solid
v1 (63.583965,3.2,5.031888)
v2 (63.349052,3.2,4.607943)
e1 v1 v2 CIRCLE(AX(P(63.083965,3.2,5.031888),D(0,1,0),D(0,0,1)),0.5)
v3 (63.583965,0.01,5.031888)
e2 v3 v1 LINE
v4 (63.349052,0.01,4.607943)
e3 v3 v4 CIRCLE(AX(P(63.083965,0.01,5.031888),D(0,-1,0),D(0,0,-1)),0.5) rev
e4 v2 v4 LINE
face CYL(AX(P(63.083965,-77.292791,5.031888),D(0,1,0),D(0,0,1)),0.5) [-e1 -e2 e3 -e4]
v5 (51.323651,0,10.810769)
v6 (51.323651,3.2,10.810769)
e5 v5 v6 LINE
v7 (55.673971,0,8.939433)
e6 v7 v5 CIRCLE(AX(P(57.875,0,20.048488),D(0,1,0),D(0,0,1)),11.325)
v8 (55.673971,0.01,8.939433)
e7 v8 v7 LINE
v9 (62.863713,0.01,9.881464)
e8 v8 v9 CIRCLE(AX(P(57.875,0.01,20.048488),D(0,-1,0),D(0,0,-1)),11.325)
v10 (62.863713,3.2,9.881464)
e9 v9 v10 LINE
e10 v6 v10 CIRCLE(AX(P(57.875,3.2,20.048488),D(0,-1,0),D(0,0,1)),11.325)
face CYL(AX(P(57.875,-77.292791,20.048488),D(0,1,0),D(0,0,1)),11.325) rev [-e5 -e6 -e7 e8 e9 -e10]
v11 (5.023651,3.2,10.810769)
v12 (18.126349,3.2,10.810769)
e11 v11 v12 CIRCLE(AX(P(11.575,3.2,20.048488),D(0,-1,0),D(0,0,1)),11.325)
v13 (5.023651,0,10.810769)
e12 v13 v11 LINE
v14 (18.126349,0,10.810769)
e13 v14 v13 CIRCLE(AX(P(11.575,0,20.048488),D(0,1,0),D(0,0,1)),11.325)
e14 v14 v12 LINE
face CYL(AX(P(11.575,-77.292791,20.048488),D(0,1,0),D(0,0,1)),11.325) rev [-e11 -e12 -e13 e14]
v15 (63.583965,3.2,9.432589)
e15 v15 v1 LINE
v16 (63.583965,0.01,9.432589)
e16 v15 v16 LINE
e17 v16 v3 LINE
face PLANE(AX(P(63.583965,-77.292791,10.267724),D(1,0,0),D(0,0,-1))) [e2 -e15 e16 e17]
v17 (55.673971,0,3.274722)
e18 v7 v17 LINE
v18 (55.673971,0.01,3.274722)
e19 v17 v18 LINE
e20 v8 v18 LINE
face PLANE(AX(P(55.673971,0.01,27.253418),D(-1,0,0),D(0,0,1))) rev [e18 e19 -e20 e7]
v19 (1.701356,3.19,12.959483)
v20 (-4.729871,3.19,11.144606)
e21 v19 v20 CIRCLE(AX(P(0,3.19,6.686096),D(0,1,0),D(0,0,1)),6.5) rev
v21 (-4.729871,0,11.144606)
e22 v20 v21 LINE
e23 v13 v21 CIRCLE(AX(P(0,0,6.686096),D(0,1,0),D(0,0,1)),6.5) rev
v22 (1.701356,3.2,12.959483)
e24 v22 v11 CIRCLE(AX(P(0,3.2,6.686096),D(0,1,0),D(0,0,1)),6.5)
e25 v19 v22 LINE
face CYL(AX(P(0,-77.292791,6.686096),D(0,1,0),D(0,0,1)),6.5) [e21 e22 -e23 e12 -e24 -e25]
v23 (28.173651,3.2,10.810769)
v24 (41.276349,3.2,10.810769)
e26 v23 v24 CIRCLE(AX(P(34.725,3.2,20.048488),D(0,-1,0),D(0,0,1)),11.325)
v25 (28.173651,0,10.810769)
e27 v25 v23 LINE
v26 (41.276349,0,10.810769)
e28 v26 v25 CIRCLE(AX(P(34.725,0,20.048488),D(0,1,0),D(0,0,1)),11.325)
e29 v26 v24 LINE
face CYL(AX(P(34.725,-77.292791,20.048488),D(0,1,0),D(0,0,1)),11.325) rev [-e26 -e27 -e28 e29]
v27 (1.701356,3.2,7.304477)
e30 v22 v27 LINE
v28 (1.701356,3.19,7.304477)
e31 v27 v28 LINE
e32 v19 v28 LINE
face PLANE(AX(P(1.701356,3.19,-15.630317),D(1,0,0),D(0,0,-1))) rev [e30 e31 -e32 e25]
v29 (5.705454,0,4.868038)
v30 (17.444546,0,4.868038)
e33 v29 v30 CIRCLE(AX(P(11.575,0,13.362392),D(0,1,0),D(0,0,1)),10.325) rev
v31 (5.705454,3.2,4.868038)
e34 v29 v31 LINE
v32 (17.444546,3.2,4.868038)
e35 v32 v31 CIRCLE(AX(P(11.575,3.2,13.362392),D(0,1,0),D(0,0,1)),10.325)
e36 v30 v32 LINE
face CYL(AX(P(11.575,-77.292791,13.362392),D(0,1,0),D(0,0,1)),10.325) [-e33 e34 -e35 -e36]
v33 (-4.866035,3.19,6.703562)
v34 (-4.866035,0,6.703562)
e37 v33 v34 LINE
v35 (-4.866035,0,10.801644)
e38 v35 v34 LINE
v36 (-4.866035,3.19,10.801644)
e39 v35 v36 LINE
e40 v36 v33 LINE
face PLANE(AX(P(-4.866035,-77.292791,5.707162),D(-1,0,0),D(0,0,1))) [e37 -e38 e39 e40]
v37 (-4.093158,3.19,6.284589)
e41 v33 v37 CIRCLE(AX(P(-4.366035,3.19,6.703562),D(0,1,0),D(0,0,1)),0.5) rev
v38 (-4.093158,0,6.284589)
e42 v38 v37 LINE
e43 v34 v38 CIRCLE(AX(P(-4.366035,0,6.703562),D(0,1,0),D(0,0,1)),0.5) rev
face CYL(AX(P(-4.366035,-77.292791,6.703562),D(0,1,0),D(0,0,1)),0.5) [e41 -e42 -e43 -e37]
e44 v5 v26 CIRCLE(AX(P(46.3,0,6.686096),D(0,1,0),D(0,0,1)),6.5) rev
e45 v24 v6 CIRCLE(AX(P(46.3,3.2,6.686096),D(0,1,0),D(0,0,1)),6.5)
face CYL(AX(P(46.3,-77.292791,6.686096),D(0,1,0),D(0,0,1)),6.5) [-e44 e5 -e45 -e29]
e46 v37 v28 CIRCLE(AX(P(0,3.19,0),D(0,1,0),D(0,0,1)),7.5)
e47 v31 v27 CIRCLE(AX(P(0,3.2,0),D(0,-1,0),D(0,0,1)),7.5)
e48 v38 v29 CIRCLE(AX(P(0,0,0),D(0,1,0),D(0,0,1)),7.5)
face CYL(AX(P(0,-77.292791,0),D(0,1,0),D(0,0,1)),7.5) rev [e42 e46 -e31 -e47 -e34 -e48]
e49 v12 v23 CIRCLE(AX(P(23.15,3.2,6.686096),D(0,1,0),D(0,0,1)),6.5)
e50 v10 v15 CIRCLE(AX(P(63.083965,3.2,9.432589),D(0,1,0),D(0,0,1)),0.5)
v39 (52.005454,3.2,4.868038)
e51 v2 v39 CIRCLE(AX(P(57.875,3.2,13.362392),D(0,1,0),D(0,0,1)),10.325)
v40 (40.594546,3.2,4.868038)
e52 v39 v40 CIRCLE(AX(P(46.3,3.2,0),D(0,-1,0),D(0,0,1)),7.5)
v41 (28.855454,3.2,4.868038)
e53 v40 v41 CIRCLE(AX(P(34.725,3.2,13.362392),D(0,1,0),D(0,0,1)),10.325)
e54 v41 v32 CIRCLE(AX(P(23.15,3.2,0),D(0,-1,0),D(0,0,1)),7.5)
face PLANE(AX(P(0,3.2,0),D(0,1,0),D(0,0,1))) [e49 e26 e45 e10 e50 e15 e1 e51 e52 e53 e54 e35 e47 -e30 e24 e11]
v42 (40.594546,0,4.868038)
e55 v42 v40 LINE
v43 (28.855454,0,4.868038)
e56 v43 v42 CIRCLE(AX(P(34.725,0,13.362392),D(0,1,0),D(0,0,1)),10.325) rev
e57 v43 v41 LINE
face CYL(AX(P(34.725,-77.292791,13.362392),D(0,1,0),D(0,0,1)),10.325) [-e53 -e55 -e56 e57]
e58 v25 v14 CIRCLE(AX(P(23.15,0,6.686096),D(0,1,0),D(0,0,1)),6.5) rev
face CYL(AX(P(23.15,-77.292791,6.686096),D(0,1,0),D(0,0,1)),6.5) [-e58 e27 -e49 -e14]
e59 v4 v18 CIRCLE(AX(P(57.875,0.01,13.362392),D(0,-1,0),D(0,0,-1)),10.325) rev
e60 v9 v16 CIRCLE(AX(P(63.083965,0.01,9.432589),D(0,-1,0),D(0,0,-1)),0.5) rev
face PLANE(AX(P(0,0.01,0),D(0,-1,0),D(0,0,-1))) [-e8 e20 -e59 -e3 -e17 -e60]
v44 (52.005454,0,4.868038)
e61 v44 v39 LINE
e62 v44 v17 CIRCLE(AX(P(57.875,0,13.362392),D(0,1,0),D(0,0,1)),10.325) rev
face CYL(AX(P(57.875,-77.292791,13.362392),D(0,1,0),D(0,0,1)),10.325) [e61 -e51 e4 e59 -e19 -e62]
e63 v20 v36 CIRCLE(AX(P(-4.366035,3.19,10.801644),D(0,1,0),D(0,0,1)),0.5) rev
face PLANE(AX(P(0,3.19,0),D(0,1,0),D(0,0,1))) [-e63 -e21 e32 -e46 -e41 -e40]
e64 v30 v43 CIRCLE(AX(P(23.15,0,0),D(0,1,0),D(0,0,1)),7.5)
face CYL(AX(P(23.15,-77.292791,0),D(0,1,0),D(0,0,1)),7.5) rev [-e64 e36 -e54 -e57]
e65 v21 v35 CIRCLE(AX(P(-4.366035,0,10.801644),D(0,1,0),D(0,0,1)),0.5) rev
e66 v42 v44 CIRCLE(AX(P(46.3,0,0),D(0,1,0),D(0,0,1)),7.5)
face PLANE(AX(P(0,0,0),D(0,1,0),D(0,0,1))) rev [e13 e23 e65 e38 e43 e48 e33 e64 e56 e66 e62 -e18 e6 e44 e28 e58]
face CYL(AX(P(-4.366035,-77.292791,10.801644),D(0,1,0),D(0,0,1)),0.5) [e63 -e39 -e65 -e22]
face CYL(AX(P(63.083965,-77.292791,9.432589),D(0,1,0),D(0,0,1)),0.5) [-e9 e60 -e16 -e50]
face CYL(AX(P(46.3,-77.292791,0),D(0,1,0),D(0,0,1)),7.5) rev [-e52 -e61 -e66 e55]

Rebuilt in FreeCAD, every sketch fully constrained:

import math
import FreeCAD as App
import Part
import Sketcher

V = App.Vector


def edges_at(feature, points):
    """Names of the edges that pass closest to the given points."""
    edges = feature.Shape.Edges
    near = lambda p: min(range(len(edges)), key=lambda i: edges[i].distToShape(Part.Vertex(*p))[0])
    return sorted({f"Edge{near(p) + 1}" for p in points})


def add_polygon(sketch, points):
    """Adds a closed chain of lines whose ends are joined by coincident constraints."""
    first, n = sketch.GeometryCount, len(points)
    for a, b in zip(points, points[1:] + points[:1]):
        sketch.addGeometry(Part.LineSegment(App.Vector(*a, 0), App.Vector(*b, 0)), False)
    for i in range(n):
        sketch.addConstraint(Sketcher.Constraint("Coincident", first + i, 2, first + (i + 1) % n, 1))

doc = App.newDocument("Part")
params = doc.addObject("Spreadsheet::Sheet", "Params")
for row, (alias, value) in enumerate([
    ("sketch1_radius", "7 mm"),
    ("pad1_length", "3.2 mm"),
    ("sketch2_radius", "6.5 mm"),
    ("sketch2_radius2", "7.5 mm"),
    ("pocket1_length", "3.2 mm"),
    ("fillet_radius", "0.5 mm"),
    ("pocket2_length", "0.01 mm"),
    ("pocket3_length", "0.01 mm"),
], start=1):
    params.set(f"A{row}", alias)
    params.set(f"B{row}", "=" + value)
    params.setAlias(f"B{row}", alias)

body = doc.addObject("PartDesign::Body", "Body")

# Sketch on XZ plane
sketch1 = body.newObject("Sketcher::SketchObject", "Sketch")
sketch1.AttachmentSupport = (doc.getObject("XZ_Plane"), [""])
sketch1.MapMode = "FlatFace"
sketch1.addGeometry([
    Part.ArcOfCircle(Part.Circle(V(58, 13, 0), V(0, 0, 1), 11), math.radians(-125), math.radians(-55)),  # 0
    Part.ArcOfCircle(Part.Circle(V(46, 0, 0), V(0, 0, 1), 7), math.radians(40), math.radians(140)),  # 1
    Part.ArcOfCircle(Part.Circle(V(35, 13, 0), V(0, 0, 1), 11), math.radians(-125), math.radians(-55)),  # 2
    Part.ArcOfCircle(Part.Circle(V(23, 0, 0), V(0, 0, 1), 7), math.radians(40), math.radians(140)),  # 3
    Part.ArcOfCircle(Part.Circle(V(12, 13, 0), V(0, 0, 1), 11), math.radians(-125), math.radians(-55)),  # 4
    Part.ArcOfCircle(Part.Circle(V(0, 0, 0), V(0, 0, 1), 7), math.radians(40), math.radians(140)),  # 5
    Part.LineSegment(V(-5, 4, 0), V(-5, 11, 0)),  # 6
    Part.ArcOfCircle(Part.Circle(V(0, 7, 0), V(0, 0, 1), 7), math.radians(40), math.radians(140)),  # 7
    Part.ArcOfCircle(Part.Circle(V(12, 20, 0), V(0, 0, 1), 11), math.radians(-125), math.radians(-55)),  # 8
    Part.ArcOfCircle(Part.Circle(V(23, 7, 0), V(0, 0, 1), 7), math.radians(40), math.radians(140)),  # 9
    Part.ArcOfCircle(Part.Circle(V(35, 20, 0), V(0, 0, 1), 11), math.radians(-125), math.radians(-55)),  # 10
    Part.ArcOfCircle(Part.Circle(V(46, 7, 0), V(0, 0, 1), 7), math.radians(40), math.radians(140)),  # 11
    Part.ArcOfCircle(Part.Circle(V(58, 20, 0), V(0, 0, 1), 11), math.radians(-125), math.radians(-55)),  # 12
    Part.LineSegment(V(64, 11, 0), V(64, 4, 0)),  # 13
], False)
sketch1.addConstraint([
    Sketcher.Constraint("Coincident", 0, 1, 1, 1),
    Sketcher.Constraint("Coincident", 1, 2, 2, 2),
    Sketcher.Constraint("Coincident", 2, 1, 3, 1),
    Sketcher.Constraint("Coincident", 3, 2, 4, 2),
    Sketcher.Constraint("Coincident", 4, 1, 5, 1),
    Sketcher.Constraint("Coincident", 5, 2, 6, 1),
    Sketcher.Constraint("Coincident", 6, 2, 7, 2),
    Sketcher.Constraint("Coincident", 7, 1, 8, 1),
    Sketcher.Constraint("Coincident", 8, 2, 9, 2),
    Sketcher.Constraint("Coincident", 9, 1, 10, 1),
    Sketcher.Constraint("Coincident", 10, 2, 11, 2),
    Sketcher.Constraint("Coincident", 11, 1, 12, 1),
    Sketcher.Constraint("Coincident", 12, 2, 13, 1),
    Sketcher.Constraint("Coincident", 13, 2, 0, 2),
    Sketcher.Constraint("Vertical", 6),
    Sketcher.Constraint("Vertical", 13),
    Sketcher.Constraint("Coincident", 5, 3, -1, 1),
    Sketcher.Constraint("Equal", 0, 2),
    Sketcher.Constraint("Equal", 1, 3),
    Sketcher.Constraint("Equal", 2, 4),
    Sketcher.Constraint("Equal", 3, 5),
    Sketcher.Constraint("Equal", 5, 7),
    Sketcher.Constraint("Equal", 4, 8),
    Sketcher.Constraint("Equal", 7, 9),
    Sketcher.Constraint("Equal", 8, 10),
    Sketcher.Constraint("Equal", 9, 11),
    Sketcher.Constraint("Equal", 10, 12),
    Sketcher.Constraint("Symmetric", 6, 2, 7, 1, -2),
    Sketcher.Constraint("PointOnObject", 1, 3, -1),
    Sketcher.Constraint("PointOnObject", 3, 3, -1),
    Sketcher.Constraint("Horizontal", 0, 3, 2, 3),
    Sketcher.Constraint("Horizontal", 2, 3, 4, 3),
    Sketcher.Constraint("Horizontal", 7, 3, 9, 3),
    Sketcher.Constraint("Horizontal", 8, 3, 10, 3),
    Sketcher.Constraint("Horizontal", 9, 3, 11, 3),
    Sketcher.Constraint("Horizontal", 10, 3, 12, 3),
    Sketcher.Constraint("Horizontal", 0, 1, 1, 2),
    Sketcher.Constraint("Horizontal", 1, 2, 2, 1),
    Sketcher.Constraint("Horizontal", 2, 1, 3, 2),
    Sketcher.Constraint("Horizontal", 3, 2, 4, 1),
    Sketcher.Constraint("Horizontal", 4, 1, 5, 2),
    Sketcher.Constraint("Horizontal", 7, 1, 8, 2),
    Sketcher.Constraint("Horizontal", 8, 2, 9, 1),
    Sketcher.Constraint("Horizontal", 9, 1, 10, 2),
    Sketcher.Constraint("Horizontal", 10, 2, 11, 1),
    Sketcher.Constraint("Horizontal", 11, 1, 12, 2),
    Sketcher.Constraint("Horizontal", 5, 2, 13, 2),
    Sketcher.Constraint("Radius", 1, 7.0),
    Sketcher.Constraint("Radius", 0, 10.825),
    Sketcher.Constraint("DistanceX", -1, 1, 1, 3, 46.3),
    Sketcher.Constraint("DistanceY", 6, 1, 6, 2, 6.686096),
    Sketcher.Constraint("DistanceY", -1, 1, 8, 3, 20.048488),
])
sketch1.setExpression("Constraints[47]", "Params.sketch1_radius")
pad1 = body.newObject("PartDesign::Pad", "Pad")
pad1.Profile = sketch1
pad1.setExpression("Length", "Params.pad1_length")
pad1.Reversed = True

# Sketch on XZ plane
sketch2 = body.newObject("Sketcher::SketchObject", "Sketch001")
sketch2.AttachmentSupport = (doc.getObject("XZ_Plane"), [""])
sketch2.MapMode = "FlatFace"
sketch2.AttachmentOffset = App.Placement(V(0, 0, -3.2), App.Rotation())
add_polygon(sketch2, [(-8, -1), (-8, 15), (67, 15), (67, -1)])  # lines 0-3
sketch2.addGeometry(Part.LineSegment(V(64, 5, 0), V(64, 10, 0)), False)  # 4
sketch2.addGeometry(Part.ArcOfCircle(Part.Circle(V(58, 20, 0), V(0, 0, 1), 11), math.radians(-125), math.radians(-60)), False)  # 5
sketch2.addGeometry(Part.ArcOfCircle(Part.Circle(V(46, 7, 0), V(0, 0, 1), 6), math.radians(39), math.radians(141)), False)  # 6
sketch2.addGeometry(Part.ArcOfCircle(Part.Circle(V(35, 20, 0), V(0, 0, 1), 11), math.radians(-125), math.radians(-55)), False)  # 7
sketch2.addGeometry(Part.ArcOfCircle(Part.Circle(V(23, 7, 0), V(0, 0, 1), 6), math.radians(39), math.radians(141)), False)  # 8
sketch2.addGeometry(Part.ArcOfCircle(Part.Circle(V(12, 20, 0), V(0, 0, 1), 11), math.radians(-125), math.radians(-55)), False)  # 9
sketch2.addGeometry(Part.ArcOfCircle(Part.Circle(V(0, 7, 0), V(0, 0, 1), 6), math.radians(39), math.radians(138)), False)  # 10
sketch2.addGeometry(Part.LineSegment(V(-5, 11, 0), V(-5, 6, 0)), False)  # 11
sketch2.addGeometry(Part.ArcOfCircle(Part.Circle(V(0, 0, 0), V(0, 0, 1), 8), math.radians(40), math.radians(130)), False)  # 12
sketch2.addGeometry(Part.ArcOfCircle(Part.Circle(V(12, 13, 0), V(0, 0, 1), 10), math.radians(-125), math.radians(-55)), False)  # 13
sketch2.addGeometry(Part.ArcOfCircle(Part.Circle(V(23, 0, 0), V(0, 0, 1), 8), math.radians(40), math.radians(140)), False)  # 14
sketch2.addGeometry(Part.ArcOfCircle(Part.Circle(V(35, 13, 0), V(0, 0, 1), 10), math.radians(-125), math.radians(-55)), False)  # 15
sketch2.addGeometry(Part.ArcOfCircle(Part.Circle(V(46, 0, 0), V(0, 0, 1), 8), math.radians(40), math.radians(140)), False)  # 16
sketch2.addGeometry(Part.ArcOfCircle(Part.Circle(V(58, 13, 0), V(0, 0, 1), 10), math.radians(-125), math.radians(-56)), False)  # 17
sketch2.addConstraint([
    Sketcher.Constraint("Coincident", 4, 2, 5, 2),
    Sketcher.Constraint("Coincident", 5, 1, 6, 1),
    Sketcher.Constraint("Coincident", 6, 2, 7, 2),
    Sketcher.Constraint("Coincident", 7, 1, 8, 1),
    Sketcher.Constraint("Coincident", 8, 2, 9, 2),
    Sketcher.Constraint("Coincident", 9, 1, 10, 1),
    Sketcher.Constraint("Coincident", 10, 2, 11, 1),
    Sketcher.Constraint("Coincident", 11, 2, 12, 2),
    Sketcher.Constraint("Coincident", 12, 1, 13, 1),
    Sketcher.Constraint("Coincident", 13, 2, 14, 2),
    Sketcher.Constraint("Coincident", 14, 1, 15, 1),
    Sketcher.Constraint("Coincident", 15, 2, 16, 2),
    Sketcher.Constraint("Coincident", 16, 1, 17, 1),
    Sketcher.Constraint("Coincident", 17, 2, 4, 1),
    Sketcher.Constraint("Vertical", 0),
    Sketcher.Constraint("Horizontal", 1),
    Sketcher.Constraint("Vertical", 2),
    Sketcher.Constraint("Horizontal", 3),
    Sketcher.Constraint("Vertical", 4),
    Sketcher.Constraint("Vertical", 11),
    Sketcher.Constraint("Coincident", 12, 3, -1, 1),
    Sketcher.Constraint("Equal", 5, 7),
    Sketcher.Constraint("Equal", 6, 8),
    Sketcher.Constraint("Equal", 7, 9),
    Sketcher.Constraint("Equal", 8, 10),
    Sketcher.Constraint("Equal", 12, 14),
    Sketcher.Constraint("Equal", 13, 15),
    Sketcher.Constraint("Equal", 14, 16),
    Sketcher.Constraint("Equal", 15, 17),
    Sketcher.Constraint("PointOnObject", 10, 3, -2),
    Sketcher.Constraint("PointOnObject", 14, 3, -1),
    Sketcher.Constraint("PointOnObject", 16, 3, -1),
    Sketcher.Constraint("Horizontal", 5, 3, 7, 3),
    Sketcher.Constraint("Horizontal", 6, 3, 8, 3),
    Sketcher.Constraint("Horizontal", 7, 3, 9, 3),
    Sketcher.Constraint("Horizontal", 8, 3, 10, 3),
    Sketcher.Constraint("Horizontal", 13, 3, 15, 3),
    Sketcher.Constraint("Horizontal", 15, 3, 17, 3),
    Sketcher.Constraint("Horizontal", 5, 1, 6, 2),
    Sketcher.Constraint("Horizontal", 6, 2, 7, 1),
    Sketcher.Constraint("Horizontal", 7, 1, 8, 2),
    Sketcher.Constraint("Horizontal", 8, 2, 9, 1),
    Sketcher.Constraint("Horizontal", 12, 1, 13, 2),
    Sketcher.Constraint("Horizontal", 13, 2, 14, 1),
    Sketcher.Constraint("Horizontal", 14, 1, 15, 2),
    Sketcher.Constraint("Horizontal", 15, 2, 16, 1),
    Sketcher.Constraint("Vertical", 9, 3, 13, 3),
    Sketcher.Constraint("Radius", 6, 6.5),
    Sketcher.Constraint("Radius", 12, 7.5),
    Sketcher.Constraint("Radius", 5, 11.325),
    Sketcher.Constraint("Radius", 13, 10.325),
    Sketcher.Constraint("DistanceX", -1, 1, 6, 3, 46.3),
    Sketcher.Constraint("DistanceX", 6, 2, 5, 1, 10.047302),
    Sketcher.Constraint("DistanceY", 17, 2, 17, 3, 8.603101),
    Sketcher.Constraint("DistanceX", 1, 1, 1, 2, 75.494873),
    Sketcher.Constraint("DistanceY", 0, 1, 0, 2, 16.574067),
    Sketcher.Constraint("DistanceY", 4, 1, 4, 2, 5.508433),
    Sketcher.Constraint("DistanceY", 11, 2, 11, 1, 5.288423),
    Sketcher.Constraint("DistanceY", -1, 1, 5, 3, 20.048488),
    Sketcher.Constraint("DistanceX", -1, 1, 1, 2, 67.017951),
    Sketcher.Constraint("DistanceY", 13, 3, 0, 2, 1.909621),
])
sketch2.setExpression("Constraints[51]", "Params.sketch2_radius")
sketch2.setExpression("Constraints[52]", "Params.sketch2_radius2")
pocket1 = body.newObject("PartDesign::Pocket", "Pocket")
pocket1.Profile = sketch2
pocket1.setExpression("Length", "Params.pocket1_length")
pocket1.Reversed = True
doc.recompute()

fillet = body.newObject("PartDesign::Fillet", "Fillet")
fillet.Base = (pocket1, edges_at(pocket1, [
    (63.584, 1.6, 10.268),
    (63.584, 1.6, 4.759),
    (-4.866, 1.6, 5.707),
    (-4.866, 1.6, 10.996),
]))
fillet.setExpression("Radius", "Params.fillet_radius")

# Sketch on XZ plane
sketch3 = body.newObject("Sketcher::SketchObject", "Sketch002")
sketch3.AttachmentSupport = (doc.getObject("XZ_Plane"), [""])
sketch3.MapMode = "FlatFace"
add_polygon(sketch3, [(56, 27), (56, 1), (64, 1), (64, 27)])  # lines 0-3
sketch3.addConstraint([
    Sketcher.Constraint("Vertical", 0),
    Sketcher.Constraint("Horizontal", 1),
    Sketcher.Constraint("Vertical", 2),
    Sketcher.Constraint("Horizontal", 3),
    Sketcher.Constraint("DistanceX", 1, 1, 1, 2, 8.055614),
    Sketcher.Constraint("DistanceY", 0, 2, 0, 1, 25.854686),
    Sketcher.Constraint("DistanceX", -1, 1, 0, 2, 55.673971),
    Sketcher.Constraint("DistanceY", -1, 1, 0, 2, 1.398732),
])
pocket2 = body.newObject("PartDesign::Pocket", "Pocket001")
pocket2.Profile = sketch3
pocket2.setExpression("Length", "Params.pocket2_length")

# Sketch on XZ plane
sketch4 = body.newObject("Sketcher::SketchObject", "Sketch003")
sketch4.AttachmentSupport = (doc.getObject("XZ_Plane"), [""])
sketch4.MapMode = "FlatFace"
sketch4.AttachmentOffset = App.Placement(V(0, 0, -3.2), App.Rotation())
add_polygon(sketch4, [(-13, -16), (-13, 16), (2, 16), (2, -16)])  # lines 0-3
sketch4.addConstraint([
    Sketcher.Constraint("Vertical", 0),
    Sketcher.Constraint("Horizontal", 1),
    Sketcher.Constraint("Vertical", 2),
    Sketcher.Constraint("Horizontal", 3),
    Sketcher.Constraint("DistanceX", 1, 1, 1, 2, 14.500106),
    Sketcher.Constraint("DistanceY", 0, 1, 0, 2, 31.260635),
    Sketcher.Constraint("DistanceX", 0, 2, -1, 1, 12.79875),
    Sketcher.Constraint("DistanceY", -1, 1, 0, 2, 15.630317),
])
pocket3 = body.newObject("PartDesign::Pocket", "Pocket002")
pocket3.Profile = sketch4
pocket3.setExpression("Length", "Params.pocket3_length")
pocket3.Reversed = True

doc.recompute()
